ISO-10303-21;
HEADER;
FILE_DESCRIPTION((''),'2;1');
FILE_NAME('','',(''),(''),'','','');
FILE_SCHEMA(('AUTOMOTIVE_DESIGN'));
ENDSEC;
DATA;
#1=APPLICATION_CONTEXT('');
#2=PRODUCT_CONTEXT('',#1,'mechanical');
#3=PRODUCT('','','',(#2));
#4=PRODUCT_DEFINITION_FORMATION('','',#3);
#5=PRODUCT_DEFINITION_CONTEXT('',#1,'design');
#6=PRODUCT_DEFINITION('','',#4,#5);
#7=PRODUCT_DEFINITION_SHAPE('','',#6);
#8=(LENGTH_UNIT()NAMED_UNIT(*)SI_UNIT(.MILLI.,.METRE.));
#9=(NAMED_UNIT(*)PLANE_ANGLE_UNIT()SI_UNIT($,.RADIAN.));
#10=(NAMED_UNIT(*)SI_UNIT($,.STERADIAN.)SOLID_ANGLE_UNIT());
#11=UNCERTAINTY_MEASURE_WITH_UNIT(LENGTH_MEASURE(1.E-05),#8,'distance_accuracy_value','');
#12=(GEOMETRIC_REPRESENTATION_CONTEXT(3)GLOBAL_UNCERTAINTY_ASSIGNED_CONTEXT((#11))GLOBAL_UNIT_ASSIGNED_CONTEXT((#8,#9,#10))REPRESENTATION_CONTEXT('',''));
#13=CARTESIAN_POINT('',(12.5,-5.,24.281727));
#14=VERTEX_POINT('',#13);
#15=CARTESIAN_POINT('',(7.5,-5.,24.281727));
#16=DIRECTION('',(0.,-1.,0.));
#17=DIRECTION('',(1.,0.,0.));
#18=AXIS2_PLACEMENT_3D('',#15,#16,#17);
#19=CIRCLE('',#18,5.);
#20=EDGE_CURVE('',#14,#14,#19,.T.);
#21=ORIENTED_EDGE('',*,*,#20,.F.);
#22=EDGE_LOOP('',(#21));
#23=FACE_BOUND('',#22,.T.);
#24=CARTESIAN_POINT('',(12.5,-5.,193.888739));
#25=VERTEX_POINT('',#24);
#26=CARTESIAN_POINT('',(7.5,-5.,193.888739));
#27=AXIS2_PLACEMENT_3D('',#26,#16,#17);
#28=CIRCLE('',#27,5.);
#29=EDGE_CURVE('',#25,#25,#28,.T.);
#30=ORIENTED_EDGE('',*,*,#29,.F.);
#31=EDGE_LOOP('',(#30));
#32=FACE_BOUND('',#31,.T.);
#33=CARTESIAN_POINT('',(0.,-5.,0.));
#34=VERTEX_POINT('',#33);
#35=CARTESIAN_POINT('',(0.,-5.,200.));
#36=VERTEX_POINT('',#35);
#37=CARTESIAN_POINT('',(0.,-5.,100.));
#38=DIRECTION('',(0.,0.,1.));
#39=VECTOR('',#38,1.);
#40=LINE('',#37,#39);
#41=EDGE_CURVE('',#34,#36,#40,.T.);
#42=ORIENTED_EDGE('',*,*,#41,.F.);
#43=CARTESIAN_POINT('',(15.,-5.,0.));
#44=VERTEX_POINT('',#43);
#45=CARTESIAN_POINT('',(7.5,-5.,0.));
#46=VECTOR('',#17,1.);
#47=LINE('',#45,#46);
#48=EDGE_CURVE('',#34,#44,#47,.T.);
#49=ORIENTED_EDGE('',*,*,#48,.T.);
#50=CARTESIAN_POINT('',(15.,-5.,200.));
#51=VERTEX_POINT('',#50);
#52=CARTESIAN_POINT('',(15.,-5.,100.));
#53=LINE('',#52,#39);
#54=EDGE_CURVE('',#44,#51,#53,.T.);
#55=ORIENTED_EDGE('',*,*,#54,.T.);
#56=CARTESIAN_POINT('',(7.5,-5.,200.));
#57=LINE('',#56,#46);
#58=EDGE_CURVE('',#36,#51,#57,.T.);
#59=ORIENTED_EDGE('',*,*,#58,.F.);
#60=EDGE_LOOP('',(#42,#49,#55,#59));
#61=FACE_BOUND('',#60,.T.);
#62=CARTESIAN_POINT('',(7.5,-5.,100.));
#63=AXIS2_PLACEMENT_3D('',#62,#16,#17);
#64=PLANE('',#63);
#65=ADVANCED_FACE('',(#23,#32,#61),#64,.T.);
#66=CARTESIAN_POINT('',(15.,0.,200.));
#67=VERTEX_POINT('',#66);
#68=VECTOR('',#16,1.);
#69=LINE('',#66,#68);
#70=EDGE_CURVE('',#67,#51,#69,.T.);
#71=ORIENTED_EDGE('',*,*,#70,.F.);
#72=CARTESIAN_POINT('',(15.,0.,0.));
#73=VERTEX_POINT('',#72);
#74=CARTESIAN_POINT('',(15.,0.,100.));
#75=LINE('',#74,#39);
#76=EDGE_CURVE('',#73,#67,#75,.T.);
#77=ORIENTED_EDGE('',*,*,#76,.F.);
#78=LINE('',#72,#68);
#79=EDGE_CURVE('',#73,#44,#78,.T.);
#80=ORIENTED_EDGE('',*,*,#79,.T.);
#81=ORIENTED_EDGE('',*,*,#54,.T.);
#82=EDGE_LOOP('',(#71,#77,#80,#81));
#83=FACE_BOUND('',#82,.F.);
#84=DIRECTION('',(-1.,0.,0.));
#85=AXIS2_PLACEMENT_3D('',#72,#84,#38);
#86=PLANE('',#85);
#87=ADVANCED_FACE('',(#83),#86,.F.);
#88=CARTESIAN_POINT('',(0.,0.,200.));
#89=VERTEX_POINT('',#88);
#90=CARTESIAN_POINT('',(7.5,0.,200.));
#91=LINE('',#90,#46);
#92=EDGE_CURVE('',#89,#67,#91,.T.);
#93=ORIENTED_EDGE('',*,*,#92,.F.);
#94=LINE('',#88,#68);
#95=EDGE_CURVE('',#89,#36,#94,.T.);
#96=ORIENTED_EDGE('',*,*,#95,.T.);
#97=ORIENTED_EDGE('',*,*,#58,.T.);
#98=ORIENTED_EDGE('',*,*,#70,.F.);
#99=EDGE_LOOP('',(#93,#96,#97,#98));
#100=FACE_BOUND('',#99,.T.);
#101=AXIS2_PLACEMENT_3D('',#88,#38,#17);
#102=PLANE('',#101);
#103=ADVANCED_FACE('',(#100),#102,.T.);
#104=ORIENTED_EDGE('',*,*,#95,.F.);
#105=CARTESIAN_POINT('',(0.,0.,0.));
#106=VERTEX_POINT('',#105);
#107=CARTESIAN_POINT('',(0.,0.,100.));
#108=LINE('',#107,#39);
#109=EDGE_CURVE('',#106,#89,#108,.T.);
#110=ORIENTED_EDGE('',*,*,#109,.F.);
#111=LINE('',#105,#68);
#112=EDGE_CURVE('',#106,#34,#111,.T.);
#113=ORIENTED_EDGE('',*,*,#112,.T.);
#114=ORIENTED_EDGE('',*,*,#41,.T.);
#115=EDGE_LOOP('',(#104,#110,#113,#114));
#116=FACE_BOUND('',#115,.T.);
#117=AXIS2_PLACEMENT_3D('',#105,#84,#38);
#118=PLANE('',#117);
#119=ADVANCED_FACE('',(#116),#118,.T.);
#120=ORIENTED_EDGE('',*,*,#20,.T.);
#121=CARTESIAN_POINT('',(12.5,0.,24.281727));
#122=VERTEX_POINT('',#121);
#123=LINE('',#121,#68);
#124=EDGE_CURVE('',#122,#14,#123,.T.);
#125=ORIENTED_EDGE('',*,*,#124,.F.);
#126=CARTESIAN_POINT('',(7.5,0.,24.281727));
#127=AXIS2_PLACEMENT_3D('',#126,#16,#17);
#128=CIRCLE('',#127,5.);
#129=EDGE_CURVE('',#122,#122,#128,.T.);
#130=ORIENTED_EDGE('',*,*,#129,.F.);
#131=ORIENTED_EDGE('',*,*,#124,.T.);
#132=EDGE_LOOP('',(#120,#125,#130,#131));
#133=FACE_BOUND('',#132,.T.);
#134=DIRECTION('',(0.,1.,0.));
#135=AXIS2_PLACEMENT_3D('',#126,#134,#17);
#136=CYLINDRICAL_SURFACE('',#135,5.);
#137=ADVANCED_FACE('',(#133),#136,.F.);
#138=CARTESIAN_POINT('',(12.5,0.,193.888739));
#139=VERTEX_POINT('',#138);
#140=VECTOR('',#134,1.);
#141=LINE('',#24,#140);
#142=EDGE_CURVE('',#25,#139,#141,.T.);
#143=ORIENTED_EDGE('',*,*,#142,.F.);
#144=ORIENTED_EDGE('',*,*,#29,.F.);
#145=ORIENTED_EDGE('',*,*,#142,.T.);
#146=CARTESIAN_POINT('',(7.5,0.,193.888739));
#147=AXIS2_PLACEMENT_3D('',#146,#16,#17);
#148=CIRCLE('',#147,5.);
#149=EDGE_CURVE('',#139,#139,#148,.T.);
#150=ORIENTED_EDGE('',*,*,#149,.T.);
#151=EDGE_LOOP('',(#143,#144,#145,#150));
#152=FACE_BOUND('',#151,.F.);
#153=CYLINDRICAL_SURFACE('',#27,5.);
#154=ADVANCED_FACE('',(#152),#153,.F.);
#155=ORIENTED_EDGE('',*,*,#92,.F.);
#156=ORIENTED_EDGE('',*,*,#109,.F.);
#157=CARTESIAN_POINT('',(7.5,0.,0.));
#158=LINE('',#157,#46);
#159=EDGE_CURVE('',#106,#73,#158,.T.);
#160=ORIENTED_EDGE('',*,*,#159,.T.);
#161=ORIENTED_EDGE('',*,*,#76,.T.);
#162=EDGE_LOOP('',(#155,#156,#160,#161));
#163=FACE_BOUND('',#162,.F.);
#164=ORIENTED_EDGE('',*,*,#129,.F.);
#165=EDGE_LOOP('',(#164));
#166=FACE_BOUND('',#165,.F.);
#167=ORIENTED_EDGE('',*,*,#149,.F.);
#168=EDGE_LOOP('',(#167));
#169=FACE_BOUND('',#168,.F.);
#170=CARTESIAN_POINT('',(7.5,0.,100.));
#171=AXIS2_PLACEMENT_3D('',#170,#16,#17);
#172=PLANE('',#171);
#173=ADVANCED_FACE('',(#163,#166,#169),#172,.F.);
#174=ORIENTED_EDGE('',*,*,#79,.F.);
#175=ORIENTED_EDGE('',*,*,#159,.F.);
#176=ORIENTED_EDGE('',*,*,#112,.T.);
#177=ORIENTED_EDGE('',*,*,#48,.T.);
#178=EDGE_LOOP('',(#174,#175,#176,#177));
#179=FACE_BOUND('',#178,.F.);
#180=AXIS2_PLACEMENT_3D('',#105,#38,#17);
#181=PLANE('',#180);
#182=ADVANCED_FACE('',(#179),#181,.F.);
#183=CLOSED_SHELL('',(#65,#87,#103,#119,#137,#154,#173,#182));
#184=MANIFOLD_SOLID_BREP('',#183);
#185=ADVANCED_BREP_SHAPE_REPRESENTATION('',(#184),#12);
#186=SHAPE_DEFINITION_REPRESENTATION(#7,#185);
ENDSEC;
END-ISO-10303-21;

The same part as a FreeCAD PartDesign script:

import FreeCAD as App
import Part
import Sketcher

V = App.Vector


def add_polygon(sketch, points):
    """Adds a closed chain of lines whose ends are joined by coincident constraints."""
    first, n = sketch.GeometryCount, len(points)
    for a, b in zip(points, points[1:] + points[:1]):
        sketch.addGeometry(Part.LineSegment(App.Vector(*a, 0), App.Vector(*b, 0)), False)
    for i in range(n):
        sketch.addConstraint(Sketcher.Constraint("Coincident", first + i, 2, first + (i + 1) % n, 1))

doc = App.newDocument("Part")
body = doc.addObject("PartDesign::Body", "Body")

sketch1 = doc.addObject("Sketcher::SketchObject", "Sketch")
body.addObject(sketch1)
sketch1.AttachmentSupport = (doc.XZ_Plane, [""])
sketch1.MapMode = "FlatFace"
add_polygon(sketch1, [(0, 200), (0, 0), (15, 0), (15, 200)])
sketch1.addGeometry(Part.Circle(V(8, 24, 0), V(0, 0, 1), 5), False)
sketch1.addConstraint(Sketcher.Constraint("Vertical", 0))
sketch1.addConstraint(Sketcher.Constraint("Horizontal", 1))
sketch1.addConstraint(Sketcher.Constraint("Vertical", 2))
sketch1.addConstraint(Sketcher.Constraint("Horizontal", 3))
sketch1.addConstraint(Sketcher.Constraint("Coincident", 0, 2, -1, 1))
sketch1.addConstraint(Sketcher.Constraint("Diameter", 4, 10.0))
sketch1.addConstraint(Sketcher.Constraint("DistanceX", 1, 1, 1, 2, 15.0))
sketch1.addConstraint(Sketcher.Constraint("DistanceY", 0, 2, 0, 1, 200.0))
sketch1.addConstraint(Sketcher.Constraint("DistanceX", -1, 1, 4, 3, 7.5))
sketch1.addConstraint(Sketcher.Constraint("DistanceY", -1, 1, 4, 3, 24.281727))
pad1 = doc.addObject("PartDesign::Pad", "Pad")
body.addObject(pad1)
pad1.Profile = sketch1
pad1.Length = 5

sketch2 = doc.addObject("Sketcher::SketchObject", "Sketch001")
body.addObject(sketch2)
sketch2.AttachmentSupport = (doc.XZ_Plane, [""])
sketch2.MapMode = "FlatFace"
sketch2.AttachmentOffset = App.Placement(V(0, 0, 5), App.Rotation())
sketch2.addGeometry(Part.Circle(V(8, 194, 0), V(0, 0, 1), 5), False)
sketch2.addConstraint(Sketcher.Constraint("Diameter", 0, 10.0))
sketch2.addConstraint(Sketcher.Constraint("DistanceX", -1, 1, 0, 3, 7.5))
sketch2.addConstraint(Sketcher.Constraint("DistanceY", -1, 1, 0, 3, 193.888739))
pocket1 = doc.addObject("PartDesign::Pocket", "Pocket")
body.addObject(pocket1)
pocket1.Profile = sketch2
pocket1.Type = "ThroughAll"

doc.recompute()
